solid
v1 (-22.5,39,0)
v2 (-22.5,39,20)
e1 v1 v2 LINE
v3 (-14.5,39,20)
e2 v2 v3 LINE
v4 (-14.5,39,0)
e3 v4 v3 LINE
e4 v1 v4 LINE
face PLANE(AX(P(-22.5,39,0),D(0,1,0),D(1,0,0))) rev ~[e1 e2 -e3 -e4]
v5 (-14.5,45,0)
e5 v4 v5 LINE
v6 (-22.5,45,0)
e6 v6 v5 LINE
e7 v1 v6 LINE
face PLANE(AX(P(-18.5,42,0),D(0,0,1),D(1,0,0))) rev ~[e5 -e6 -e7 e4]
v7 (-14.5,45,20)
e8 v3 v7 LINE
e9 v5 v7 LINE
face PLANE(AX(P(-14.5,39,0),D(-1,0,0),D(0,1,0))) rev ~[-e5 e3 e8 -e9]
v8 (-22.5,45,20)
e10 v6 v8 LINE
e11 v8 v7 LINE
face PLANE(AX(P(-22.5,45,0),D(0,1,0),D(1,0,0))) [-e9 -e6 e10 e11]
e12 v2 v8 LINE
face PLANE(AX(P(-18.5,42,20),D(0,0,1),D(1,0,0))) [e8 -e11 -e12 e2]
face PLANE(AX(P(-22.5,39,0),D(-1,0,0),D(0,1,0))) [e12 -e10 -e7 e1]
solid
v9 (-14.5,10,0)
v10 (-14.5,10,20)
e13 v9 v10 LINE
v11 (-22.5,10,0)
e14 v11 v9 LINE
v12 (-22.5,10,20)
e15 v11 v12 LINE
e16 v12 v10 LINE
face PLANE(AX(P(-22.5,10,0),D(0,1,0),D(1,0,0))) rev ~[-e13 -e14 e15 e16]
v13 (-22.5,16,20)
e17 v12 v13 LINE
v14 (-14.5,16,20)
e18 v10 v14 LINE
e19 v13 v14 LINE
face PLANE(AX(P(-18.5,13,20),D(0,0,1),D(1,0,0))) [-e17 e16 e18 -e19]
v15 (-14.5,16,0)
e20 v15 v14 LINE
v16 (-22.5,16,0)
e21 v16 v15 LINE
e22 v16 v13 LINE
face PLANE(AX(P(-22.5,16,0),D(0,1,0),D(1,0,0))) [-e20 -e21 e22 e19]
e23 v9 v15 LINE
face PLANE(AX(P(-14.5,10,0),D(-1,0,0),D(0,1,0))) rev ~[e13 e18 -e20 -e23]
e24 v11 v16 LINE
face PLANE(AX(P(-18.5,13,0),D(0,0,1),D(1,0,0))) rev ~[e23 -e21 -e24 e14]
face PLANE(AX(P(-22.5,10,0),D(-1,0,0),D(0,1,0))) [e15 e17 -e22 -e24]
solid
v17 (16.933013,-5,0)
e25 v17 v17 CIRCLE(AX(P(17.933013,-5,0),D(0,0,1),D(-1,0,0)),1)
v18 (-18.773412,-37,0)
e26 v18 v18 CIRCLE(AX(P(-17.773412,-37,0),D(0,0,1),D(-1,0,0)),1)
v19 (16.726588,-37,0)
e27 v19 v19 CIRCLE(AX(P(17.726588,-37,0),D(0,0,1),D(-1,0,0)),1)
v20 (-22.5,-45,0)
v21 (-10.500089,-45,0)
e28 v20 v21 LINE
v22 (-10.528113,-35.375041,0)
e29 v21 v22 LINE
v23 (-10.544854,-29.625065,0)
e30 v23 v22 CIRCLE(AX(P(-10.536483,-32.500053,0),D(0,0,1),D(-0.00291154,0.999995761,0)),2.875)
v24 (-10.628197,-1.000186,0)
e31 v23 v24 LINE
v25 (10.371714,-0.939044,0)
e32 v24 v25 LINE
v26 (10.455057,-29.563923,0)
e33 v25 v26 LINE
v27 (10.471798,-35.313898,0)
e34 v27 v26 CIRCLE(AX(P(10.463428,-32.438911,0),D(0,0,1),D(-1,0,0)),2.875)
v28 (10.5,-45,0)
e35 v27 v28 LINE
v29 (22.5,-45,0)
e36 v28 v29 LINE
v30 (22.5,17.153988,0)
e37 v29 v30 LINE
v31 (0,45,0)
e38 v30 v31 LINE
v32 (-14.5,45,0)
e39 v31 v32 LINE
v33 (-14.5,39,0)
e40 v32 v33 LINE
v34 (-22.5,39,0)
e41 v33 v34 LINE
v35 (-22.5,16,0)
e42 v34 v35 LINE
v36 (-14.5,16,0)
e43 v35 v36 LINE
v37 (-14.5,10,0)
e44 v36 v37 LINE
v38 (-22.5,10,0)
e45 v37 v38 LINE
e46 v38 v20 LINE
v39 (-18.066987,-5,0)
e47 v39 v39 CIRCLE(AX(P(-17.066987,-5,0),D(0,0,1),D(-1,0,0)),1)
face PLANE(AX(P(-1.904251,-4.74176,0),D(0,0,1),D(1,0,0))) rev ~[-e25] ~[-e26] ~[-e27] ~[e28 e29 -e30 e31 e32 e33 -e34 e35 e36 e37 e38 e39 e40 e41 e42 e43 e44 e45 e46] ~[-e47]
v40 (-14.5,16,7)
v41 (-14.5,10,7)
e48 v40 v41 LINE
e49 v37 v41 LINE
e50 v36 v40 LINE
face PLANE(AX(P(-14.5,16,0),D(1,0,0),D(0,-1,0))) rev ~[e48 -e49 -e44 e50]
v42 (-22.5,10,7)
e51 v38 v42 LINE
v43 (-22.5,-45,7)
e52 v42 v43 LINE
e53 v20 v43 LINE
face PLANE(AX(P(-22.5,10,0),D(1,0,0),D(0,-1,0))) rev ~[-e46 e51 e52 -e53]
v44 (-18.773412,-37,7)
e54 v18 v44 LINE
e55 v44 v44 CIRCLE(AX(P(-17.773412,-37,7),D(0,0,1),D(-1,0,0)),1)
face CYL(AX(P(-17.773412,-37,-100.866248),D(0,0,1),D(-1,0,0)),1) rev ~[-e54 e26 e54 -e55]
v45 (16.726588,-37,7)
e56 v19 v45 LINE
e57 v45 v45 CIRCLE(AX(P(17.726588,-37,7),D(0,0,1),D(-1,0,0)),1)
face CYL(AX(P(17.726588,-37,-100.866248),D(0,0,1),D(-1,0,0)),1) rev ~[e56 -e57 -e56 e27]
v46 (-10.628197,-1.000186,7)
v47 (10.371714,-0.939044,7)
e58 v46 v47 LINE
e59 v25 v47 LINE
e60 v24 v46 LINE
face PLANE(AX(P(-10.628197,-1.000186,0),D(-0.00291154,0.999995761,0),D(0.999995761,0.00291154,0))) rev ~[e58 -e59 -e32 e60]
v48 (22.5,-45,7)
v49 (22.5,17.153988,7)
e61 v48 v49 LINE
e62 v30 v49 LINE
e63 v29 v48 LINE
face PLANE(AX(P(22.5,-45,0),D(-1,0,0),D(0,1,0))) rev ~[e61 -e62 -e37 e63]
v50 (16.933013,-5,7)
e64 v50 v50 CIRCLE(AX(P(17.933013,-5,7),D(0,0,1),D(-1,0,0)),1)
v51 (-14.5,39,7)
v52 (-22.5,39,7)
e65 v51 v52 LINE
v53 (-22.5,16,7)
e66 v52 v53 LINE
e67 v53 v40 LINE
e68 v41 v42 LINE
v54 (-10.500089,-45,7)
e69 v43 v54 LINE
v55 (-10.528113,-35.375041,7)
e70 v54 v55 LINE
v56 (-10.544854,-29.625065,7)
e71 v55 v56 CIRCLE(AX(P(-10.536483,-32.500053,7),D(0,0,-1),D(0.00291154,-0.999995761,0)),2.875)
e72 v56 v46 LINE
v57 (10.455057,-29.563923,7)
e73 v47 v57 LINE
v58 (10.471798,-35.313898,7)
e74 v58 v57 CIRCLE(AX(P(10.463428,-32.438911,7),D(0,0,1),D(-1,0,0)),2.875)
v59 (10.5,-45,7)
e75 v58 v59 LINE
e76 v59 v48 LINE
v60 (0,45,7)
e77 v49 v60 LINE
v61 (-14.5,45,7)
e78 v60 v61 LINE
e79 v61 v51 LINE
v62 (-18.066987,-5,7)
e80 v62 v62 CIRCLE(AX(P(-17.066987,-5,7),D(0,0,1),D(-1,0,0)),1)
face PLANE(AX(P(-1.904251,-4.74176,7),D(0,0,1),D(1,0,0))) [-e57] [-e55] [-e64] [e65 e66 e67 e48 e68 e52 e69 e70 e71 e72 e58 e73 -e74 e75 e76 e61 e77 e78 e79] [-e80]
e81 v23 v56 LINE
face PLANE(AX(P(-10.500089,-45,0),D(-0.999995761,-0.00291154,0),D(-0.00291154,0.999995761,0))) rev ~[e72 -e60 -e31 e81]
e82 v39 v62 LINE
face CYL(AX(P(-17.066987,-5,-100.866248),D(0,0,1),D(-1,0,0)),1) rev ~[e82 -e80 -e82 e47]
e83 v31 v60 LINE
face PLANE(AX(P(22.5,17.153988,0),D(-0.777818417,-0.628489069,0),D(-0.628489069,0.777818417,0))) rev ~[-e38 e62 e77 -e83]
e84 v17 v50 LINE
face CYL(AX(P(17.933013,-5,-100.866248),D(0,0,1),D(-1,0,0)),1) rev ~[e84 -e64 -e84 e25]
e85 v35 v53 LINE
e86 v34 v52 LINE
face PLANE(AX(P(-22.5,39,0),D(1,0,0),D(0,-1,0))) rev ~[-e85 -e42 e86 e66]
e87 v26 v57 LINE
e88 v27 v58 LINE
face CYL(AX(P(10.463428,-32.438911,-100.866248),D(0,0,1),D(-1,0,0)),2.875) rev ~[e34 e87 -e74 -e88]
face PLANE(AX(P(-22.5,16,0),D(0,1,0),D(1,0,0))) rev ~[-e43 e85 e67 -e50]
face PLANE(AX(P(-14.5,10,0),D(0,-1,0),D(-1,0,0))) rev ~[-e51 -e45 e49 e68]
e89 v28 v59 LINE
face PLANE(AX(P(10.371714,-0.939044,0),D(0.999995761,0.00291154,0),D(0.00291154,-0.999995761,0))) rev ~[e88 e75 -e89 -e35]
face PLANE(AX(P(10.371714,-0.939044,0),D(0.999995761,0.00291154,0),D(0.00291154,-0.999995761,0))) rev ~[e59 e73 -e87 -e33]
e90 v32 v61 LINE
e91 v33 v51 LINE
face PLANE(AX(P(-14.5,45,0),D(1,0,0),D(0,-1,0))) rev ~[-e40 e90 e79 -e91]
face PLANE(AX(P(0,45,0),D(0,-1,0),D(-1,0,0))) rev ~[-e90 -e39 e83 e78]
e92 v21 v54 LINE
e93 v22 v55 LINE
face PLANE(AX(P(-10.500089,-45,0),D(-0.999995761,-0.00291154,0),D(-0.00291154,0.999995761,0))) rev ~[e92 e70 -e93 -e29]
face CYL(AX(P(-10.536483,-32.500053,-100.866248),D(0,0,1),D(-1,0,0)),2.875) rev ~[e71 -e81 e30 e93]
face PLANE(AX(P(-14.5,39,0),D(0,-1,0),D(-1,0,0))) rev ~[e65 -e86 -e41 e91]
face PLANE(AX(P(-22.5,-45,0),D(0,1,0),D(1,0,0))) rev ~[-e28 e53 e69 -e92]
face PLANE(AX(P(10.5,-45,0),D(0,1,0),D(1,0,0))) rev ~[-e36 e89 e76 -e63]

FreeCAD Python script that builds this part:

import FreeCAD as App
import Part
import Sketcher

V = App.Vector
Q = App.Units.Quantity

doc = App.newDocument("Part")
params = doc.addObject("Spreadsheet::Sheet", "Params")
for row, (alias, value) in enumerate([
    ("sketch1_width", "8 mm"),
    ("sketch1_height", "6 mm"),
    ("pad1_length", "20 mm"),
    ("sketch2_width", "8 mm"),
    ("sketch2_height", "6 mm"),
    ("pad2_length", "20 mm"),
    ("sketch3_width", "12 mm"),
    ("sketch3_width2", "8 mm"),
    ("sketch3_height", "6 mm"),
    ("sketch3_height2", "23 mm"),
    ("sketch3_height3", "55 mm"),
    ("pad3_length", "7 mm"),
    ("sketch4_diameter", "2 mm"),
    ("hole_diameter", "2 mm"),
    ("sketch5_diameter", "5.75 mm"),
    ("hole2_diameter", "5.75 mm"),
], start=1):
    params.set(f"A{row}", alias)
    params.set(f"B{row}", "=" + value)
    params.setAlias(f"B{row}", alias)

body = doc.addObject("PartDesign::Body", "Body")

# Sketch on XY plane
sketch1 = body.newObject("Sketcher::SketchObject", "Sketch")
sketch1.AttachmentSupport = (doc.getObject("XY_Plane"), [""])
sketch1.MapMode = "FlatFace"
sketch1.addGeometry([
    Part.LineSegment(V(-22, 45, 0), V(-22, 39, 0)),
    Part.LineSegment(V(-22, 39, 0), V(-14, 39, 0)),
    Part.LineSegment(V(-14, 39, 0), V(-14, 45, 0)),
    Part.LineSegment(V(-14, 45, 0), V(-22, 45, 0)),
], False)
sketch1.addConstraint([
    Sketcher.Constraint("Coincident", 0, 2, 1, 1),
    Sketcher.Constraint("Coincident", 1, 2, 2, 1),
    Sketcher.Constraint("Coincident", 2, 2, 3, 1),
    Sketcher.Constraint("Coincident", 3, 2, 0, 1),
    Sketcher.Constraint("Vertical", 0),
    Sketcher.Constraint("Horizontal", 1),
    Sketcher.Constraint("Vertical", 2),
    Sketcher.Constraint("Horizontal", 3),
    Sketcher.Constraint("DistanceX", 1, 1, 1, 2, Q("8 mm")),
    Sketcher.Constraint("DistanceY", 0, 2, 0, 1, Q("6 mm")),
    Sketcher.Constraint("DistanceY", -1, 1, 0, 2, Q("39 mm")),
    Sketcher.Constraint("DistanceX", 0, 2, -1, 1, Q("22.5 mm")),
])
sketch1.setExpression("Constraints[8]", "Params.sketch1_width")
sketch1.setExpression("Constraints[9]", "Params.sketch1_height")
pad1 = body.newObject("PartDesign::Pad", "Pad")
pad1.Profile = sketch1
pad1.setExpression("Length", "Params.pad1_length")
body2 = doc.addObject("PartDesign::Body", "Body001")

# Sketch on XY plane
sketch2 = body2.newObject("Sketcher::SketchObject", "Sketch001")
sketch2.AttachmentSupport = (doc.getObject("XY_Plane001"), [""])
sketch2.MapMode = "FlatFace"
sketch2.addGeometry([
    Part.LineSegment(V(-22, 16, 0), V(-22, 10, 0)),
    Part.LineSegment(V(-22, 10, 0), V(-14, 10, 0)),
    Part.LineSegment(V(-14, 10, 0), V(-14, 16, 0)),
    Part.LineSegment(V(-14, 16, 0), V(-22, 16, 0)),
], False)
sketch2.addConstraint([
    Sketcher.Constraint("Coincident", 0, 2, 1, 1),
    Sketcher.Constraint("Coincident", 1, 2, 2, 1),
    Sketcher.Constraint("Coincident", 2, 2, 3, 1),
    Sketcher.Constraint("Coincident", 3, 2, 0, 1),
    Sketcher.Constraint("Vertical", 0),
    Sketcher.Constraint("Horizontal", 1),
    Sketcher.Constraint("Vertical", 2),
    Sketcher.Constraint("Horizontal", 3),
    Sketcher.Constraint("DistanceX", 1, 1, 1, 2, Q("8 mm")),
    Sketcher.Constraint("DistanceY", 0, 2, 0, 1, Q("6 mm")),
    Sketcher.Constraint("DistanceY", -1, 1, 0, 2, Q("10 mm")),
    Sketcher.Constraint("DistanceX", 0, 2, -1, 1, Q("22.5 mm")),
])
sketch2.setExpression("Constraints[8]", "Params.sketch2_width")
sketch2.setExpression("Constraints[9]", "Params.sketch2_height")
pad2 = body2.newObject("PartDesign::Pad", "Pad001")
pad2.Profile = sketch2
pad2.setExpression("Length", "Params.pad2_length")
body3 = doc.addObject("PartDesign::Body", "Body002")

# Sketch on XY plane
sketch3 = body3.newObject("Sketcher::SketchObject", "Sketch002")
sketch3.AttachmentSupport = (doc.getObject("XY_Plane002"), [""])
sketch3.MapMode = "FlatFace"
sketch3.addGeometry([
    Part.LineSegment(V(10, -45, 0), V(22, -45, 0)),  # 0
    Part.LineSegment(V(22, -45, 0), V(22, 17, 0)),  # 1
    Part.LineSegment(V(22, 17, 0), V(0, 45, 0)),  # 2
    Part.LineSegment(V(0, 45, 0), V(-14, 45, 0)),  # 3
    Part.LineSegment(V(-14, 45, 0), V(-14, 39, 0)),  # 4
    Part.LineSegment(V(-14, 39, 0), V(-22, 39, 0)),  # 5
    Part.LineSegment(V(-22, 39, 0), V(-22, 16, 0)),  # 6
    Part.LineSegment(V(-22, 16, 0), V(-14, 16, 0)),  # 7
    Part.LineSegment(V(-14, 16, 0), V(-14, 10, 0)),  # 8
    Part.LineSegment(V(-14, 10, 0), V(-22, 10, 0)),  # 9
    Part.LineSegment(V(-22, 10, 0), V(-22, -45, 0)),  # 10
    Part.LineSegment(V(-22, -45, 0), V(-11, -45, 0)),  # 11
    Part.LineSegment(V(-11, -45, 0), V(-11, -1, 0)),  # 12
    Part.LineSegment(V(-11, -1, 0), V(10, -1, 0)),  # 13
    Part.LineSegment(V(10, -1, 0), V(10, -45, 0)),  # 14
], False)
sketch3.addConstraint([
    Sketcher.Constraint("Coincident", 0, 2, 1, 1),
    Sketcher.Constraint("Coincident", 1, 2, 2, 1),
    Sketcher.Constraint("Coincident", 2, 2, 3, 1),
    Sketcher.Constraint("Coincident", 3, 2, 4, 1),
    Sketcher.Constraint("Coincident", 4, 2, 5, 1),
    Sketcher.Constraint("Coincident", 5, 2, 6, 1),
    Sketcher.Constraint("Coincident", 6, 2, 7, 1),
    Sketcher.Constraint("Coincident", 7, 2, 8, 1),
    Sketcher.Constraint("Coincident", 8, 2, 9, 1),
    Sketcher.Constraint("Coincident", 9, 2, 10, 1),
    Sketcher.Constraint("Coincident", 10, 2, 11, 1),
    Sketcher.Constraint("Coincident", 11, 2, 12, 1),
    Sketcher.Constraint("Coincident", 12, 2, 13, 1),
    Sketcher.Constraint("Coincident", 13, 2, 14, 1),
    Sketcher.Constraint("Coincident", 14, 2, 0, 1),
    Sketcher.Constraint("Horizontal", 0),
    Sketcher.Constraint("Vertical", 1),
    Sketcher.Constraint("Horizontal", 3),
    Sketcher.Constraint("Vertical", 4),
    Sketcher.Constraint("Horizontal", 5),
    Sketcher.Constraint("Vertical", 6),
    Sketcher.Constraint("Horizontal", 7),
    Sketcher.Constraint("Vertical", 8),
    Sketcher.Constraint("Horizontal", 9),
    Sketcher.Constraint("Vertical", 10),
    Sketcher.Constraint("Horizontal", 11),
    Sketcher.Constraint("Symmetric", 0, 2, 10, 2, -2),
    Sketcher.Constraint("PointOnObject", 2, 2, -2),
    Sketcher.Constraint("Perpendicular", 12, 13),
    Sketcher.Constraint("Perpendicular", 13, 14),
    Sketcher.Constraint("Vertical", 4, 2, 7, 2),
    Sketcher.Constraint("Vertical", 6, 2, 9, 2),
    Sketcher.Constraint("Equal", 4, 8),
    Sketcher.Constraint("DistanceX", 0, 1, 0, 2, Q("12 mm")),
    Sketcher.Constraint("DistanceX", 5, 2, 5, 1, Q("8 mm")),
    Sketcher.Constraint("DistanceY", 4, 2, 4, 1, Q("6 mm")),
    Sketcher.Constraint("DistanceY", 6, 2, 6, 1, Q("23 mm")),
    Sketcher.Constraint("DistanceY", 10, 2, 10, 1, Q("55 mm")),
    Sketcher.Constraint("Distance", 12, Q("44 mm")),
    Sketcher.Constraint("Distance", 13, Q("21 mm")),
    Sketcher.Constraint("DistanceX", 3, 2, 3, 1, Q("14.5 mm")),
    Sketcher.Constraint("DistanceY", 0, 2, -1, 1, Q("45 mm")),
    Sketcher.Constraint("DistanceY", 1, 1, 1, 2, Q("62.153988 mm")),
    Sketcher.Constraint("DistanceY", 13, 2, 1, 2, Q("18.093032 mm")),
])
sketch3.setExpression("Constraints[33]", "Params.sketch3_width")
sketch3.setExpression("Constraints[34]", "Params.sketch3_width2")
sketch3.setExpression("Constraints[35]", "Params.sketch3_height")
sketch3.setExpression("Constraints[36]", "Params.sketch3_height2")
sketch3.setExpression("Constraints[37]", "Params.sketch3_height3")
pad3 = body3.newObject("PartDesign::Pad", "Pad002")
pad3.Profile = sketch3
pad3.setExpression("Length", "Params.pad3_length")

# Sketch on XY plane
sketch4 = body3.newObject("Sketcher::SketchObject", "Sketch003")
sketch4.AttachmentSupport = (doc.getObject("XY_Plane002"), [""])
sketch4.MapMode = "FlatFace"
sketch4.addGeometry([
    Part.Circle(V(-17.1, -5, 0), V(0, 0, 1), 1),
    Part.Circle(V(-17.8, -37, 0), V(0, 0, 1), 1),
    Part.Circle(V(17.7, -37, 0), V(0, 0, 1), 1),
    Part.Circle(V(17.9, -5, 0), V(0, 0, 1), 1),
], False)
sketch4.addConstraint([
    Sketcher.Constraint("Equal", 0, 1),
    Sketcher.Constraint("Equal", 1, 2),
    Sketcher.Constraint("Equal", 2, 3),
    Sketcher.Constraint("Horizontal", 1, 3, 2, 3),
    Sketcher.Constraint("Horizontal", 0, 3, 3, 3),
    Sketcher.Constraint("Diameter", 0, Q("2 mm")),
    Sketcher.Constraint("DistanceY", 0, 3, -1, 1, Q("5 mm")),
    Sketcher.Constraint("DistanceY", 1, 3, -1, 1, Q("37 mm")),
    Sketcher.Constraint("DistanceX", 0, 3, 3, 3, Q("35 mm")),
    Sketcher.Constraint("DistanceX", 1, 3, 2, 3, Q("35.5 mm")),
    Sketcher.Constraint("DistanceX", 0, 3, -1, 1, Q("17.066987 mm")),
    Sketcher.Constraint("DistanceX", 1, 3, -1, 1, Q("17.773412 mm")),
])
sketch4.setExpression("Constraints[5]", "Params.sketch4_diameter")
doc.recompute()
hole = body3.newObject("PartDesign::Hole", "Hole")
hole.Profile = sketch4
hole.ThreadType = "None"
hole.setExpression("Diameter", "Params.hole_diameter")
hole.DepthType = "ThroughAll"
hole.Reversed = True

# Sketch on XY plane
sketch5 = body3.newObject("Sketcher::SketchObject", "Sketch004")
sketch5.AttachmentSupport = (doc.getObject("XY_Plane002"), [""])
sketch5.MapMode = "FlatFace"
sketch5.addGeometry([
    Part.Circle(V(-10.5, -32.5, 0), V(0, 0, 1), 2.9),
    Part.Circle(V(10.5, -32.4, 0), V(0, 0, 1), 2.9),
], False)
sketch5.addConstraint([
    Sketcher.Constraint("Equal", 0, 1),
    Sketcher.Constraint("Diameter", 0, Q("5.75 mm")),
    Sketcher.Constraint("DistanceY", 1, 3, -1, 1, Q("32.438911 mm")),
    Sketcher.Constraint("DistanceX", 0, 3, 1, 3, Q("20.999911 mm")),
    Sketcher.Constraint("DistanceX", 0, 3, -1, 1, Q("10.536483 mm")),
    Sketcher.Constraint("DistanceY", 0, 3, -1, 1, Q("32.500053 mm")),
])
sketch5.setExpression("Constraints[1]", "Params.sketch5_diameter")
doc.recompute()
hole2 = body3.newObject("PartDesign::Hole", "Hole001")
hole2.Profile = sketch5
hole2.ThreadType = "None"
hole2.setExpression("Diameter", "Params.hole2_diameter")
hole2.DepthType = "ThroughAll"
hole2.Reversed = True

doc.recompute()
